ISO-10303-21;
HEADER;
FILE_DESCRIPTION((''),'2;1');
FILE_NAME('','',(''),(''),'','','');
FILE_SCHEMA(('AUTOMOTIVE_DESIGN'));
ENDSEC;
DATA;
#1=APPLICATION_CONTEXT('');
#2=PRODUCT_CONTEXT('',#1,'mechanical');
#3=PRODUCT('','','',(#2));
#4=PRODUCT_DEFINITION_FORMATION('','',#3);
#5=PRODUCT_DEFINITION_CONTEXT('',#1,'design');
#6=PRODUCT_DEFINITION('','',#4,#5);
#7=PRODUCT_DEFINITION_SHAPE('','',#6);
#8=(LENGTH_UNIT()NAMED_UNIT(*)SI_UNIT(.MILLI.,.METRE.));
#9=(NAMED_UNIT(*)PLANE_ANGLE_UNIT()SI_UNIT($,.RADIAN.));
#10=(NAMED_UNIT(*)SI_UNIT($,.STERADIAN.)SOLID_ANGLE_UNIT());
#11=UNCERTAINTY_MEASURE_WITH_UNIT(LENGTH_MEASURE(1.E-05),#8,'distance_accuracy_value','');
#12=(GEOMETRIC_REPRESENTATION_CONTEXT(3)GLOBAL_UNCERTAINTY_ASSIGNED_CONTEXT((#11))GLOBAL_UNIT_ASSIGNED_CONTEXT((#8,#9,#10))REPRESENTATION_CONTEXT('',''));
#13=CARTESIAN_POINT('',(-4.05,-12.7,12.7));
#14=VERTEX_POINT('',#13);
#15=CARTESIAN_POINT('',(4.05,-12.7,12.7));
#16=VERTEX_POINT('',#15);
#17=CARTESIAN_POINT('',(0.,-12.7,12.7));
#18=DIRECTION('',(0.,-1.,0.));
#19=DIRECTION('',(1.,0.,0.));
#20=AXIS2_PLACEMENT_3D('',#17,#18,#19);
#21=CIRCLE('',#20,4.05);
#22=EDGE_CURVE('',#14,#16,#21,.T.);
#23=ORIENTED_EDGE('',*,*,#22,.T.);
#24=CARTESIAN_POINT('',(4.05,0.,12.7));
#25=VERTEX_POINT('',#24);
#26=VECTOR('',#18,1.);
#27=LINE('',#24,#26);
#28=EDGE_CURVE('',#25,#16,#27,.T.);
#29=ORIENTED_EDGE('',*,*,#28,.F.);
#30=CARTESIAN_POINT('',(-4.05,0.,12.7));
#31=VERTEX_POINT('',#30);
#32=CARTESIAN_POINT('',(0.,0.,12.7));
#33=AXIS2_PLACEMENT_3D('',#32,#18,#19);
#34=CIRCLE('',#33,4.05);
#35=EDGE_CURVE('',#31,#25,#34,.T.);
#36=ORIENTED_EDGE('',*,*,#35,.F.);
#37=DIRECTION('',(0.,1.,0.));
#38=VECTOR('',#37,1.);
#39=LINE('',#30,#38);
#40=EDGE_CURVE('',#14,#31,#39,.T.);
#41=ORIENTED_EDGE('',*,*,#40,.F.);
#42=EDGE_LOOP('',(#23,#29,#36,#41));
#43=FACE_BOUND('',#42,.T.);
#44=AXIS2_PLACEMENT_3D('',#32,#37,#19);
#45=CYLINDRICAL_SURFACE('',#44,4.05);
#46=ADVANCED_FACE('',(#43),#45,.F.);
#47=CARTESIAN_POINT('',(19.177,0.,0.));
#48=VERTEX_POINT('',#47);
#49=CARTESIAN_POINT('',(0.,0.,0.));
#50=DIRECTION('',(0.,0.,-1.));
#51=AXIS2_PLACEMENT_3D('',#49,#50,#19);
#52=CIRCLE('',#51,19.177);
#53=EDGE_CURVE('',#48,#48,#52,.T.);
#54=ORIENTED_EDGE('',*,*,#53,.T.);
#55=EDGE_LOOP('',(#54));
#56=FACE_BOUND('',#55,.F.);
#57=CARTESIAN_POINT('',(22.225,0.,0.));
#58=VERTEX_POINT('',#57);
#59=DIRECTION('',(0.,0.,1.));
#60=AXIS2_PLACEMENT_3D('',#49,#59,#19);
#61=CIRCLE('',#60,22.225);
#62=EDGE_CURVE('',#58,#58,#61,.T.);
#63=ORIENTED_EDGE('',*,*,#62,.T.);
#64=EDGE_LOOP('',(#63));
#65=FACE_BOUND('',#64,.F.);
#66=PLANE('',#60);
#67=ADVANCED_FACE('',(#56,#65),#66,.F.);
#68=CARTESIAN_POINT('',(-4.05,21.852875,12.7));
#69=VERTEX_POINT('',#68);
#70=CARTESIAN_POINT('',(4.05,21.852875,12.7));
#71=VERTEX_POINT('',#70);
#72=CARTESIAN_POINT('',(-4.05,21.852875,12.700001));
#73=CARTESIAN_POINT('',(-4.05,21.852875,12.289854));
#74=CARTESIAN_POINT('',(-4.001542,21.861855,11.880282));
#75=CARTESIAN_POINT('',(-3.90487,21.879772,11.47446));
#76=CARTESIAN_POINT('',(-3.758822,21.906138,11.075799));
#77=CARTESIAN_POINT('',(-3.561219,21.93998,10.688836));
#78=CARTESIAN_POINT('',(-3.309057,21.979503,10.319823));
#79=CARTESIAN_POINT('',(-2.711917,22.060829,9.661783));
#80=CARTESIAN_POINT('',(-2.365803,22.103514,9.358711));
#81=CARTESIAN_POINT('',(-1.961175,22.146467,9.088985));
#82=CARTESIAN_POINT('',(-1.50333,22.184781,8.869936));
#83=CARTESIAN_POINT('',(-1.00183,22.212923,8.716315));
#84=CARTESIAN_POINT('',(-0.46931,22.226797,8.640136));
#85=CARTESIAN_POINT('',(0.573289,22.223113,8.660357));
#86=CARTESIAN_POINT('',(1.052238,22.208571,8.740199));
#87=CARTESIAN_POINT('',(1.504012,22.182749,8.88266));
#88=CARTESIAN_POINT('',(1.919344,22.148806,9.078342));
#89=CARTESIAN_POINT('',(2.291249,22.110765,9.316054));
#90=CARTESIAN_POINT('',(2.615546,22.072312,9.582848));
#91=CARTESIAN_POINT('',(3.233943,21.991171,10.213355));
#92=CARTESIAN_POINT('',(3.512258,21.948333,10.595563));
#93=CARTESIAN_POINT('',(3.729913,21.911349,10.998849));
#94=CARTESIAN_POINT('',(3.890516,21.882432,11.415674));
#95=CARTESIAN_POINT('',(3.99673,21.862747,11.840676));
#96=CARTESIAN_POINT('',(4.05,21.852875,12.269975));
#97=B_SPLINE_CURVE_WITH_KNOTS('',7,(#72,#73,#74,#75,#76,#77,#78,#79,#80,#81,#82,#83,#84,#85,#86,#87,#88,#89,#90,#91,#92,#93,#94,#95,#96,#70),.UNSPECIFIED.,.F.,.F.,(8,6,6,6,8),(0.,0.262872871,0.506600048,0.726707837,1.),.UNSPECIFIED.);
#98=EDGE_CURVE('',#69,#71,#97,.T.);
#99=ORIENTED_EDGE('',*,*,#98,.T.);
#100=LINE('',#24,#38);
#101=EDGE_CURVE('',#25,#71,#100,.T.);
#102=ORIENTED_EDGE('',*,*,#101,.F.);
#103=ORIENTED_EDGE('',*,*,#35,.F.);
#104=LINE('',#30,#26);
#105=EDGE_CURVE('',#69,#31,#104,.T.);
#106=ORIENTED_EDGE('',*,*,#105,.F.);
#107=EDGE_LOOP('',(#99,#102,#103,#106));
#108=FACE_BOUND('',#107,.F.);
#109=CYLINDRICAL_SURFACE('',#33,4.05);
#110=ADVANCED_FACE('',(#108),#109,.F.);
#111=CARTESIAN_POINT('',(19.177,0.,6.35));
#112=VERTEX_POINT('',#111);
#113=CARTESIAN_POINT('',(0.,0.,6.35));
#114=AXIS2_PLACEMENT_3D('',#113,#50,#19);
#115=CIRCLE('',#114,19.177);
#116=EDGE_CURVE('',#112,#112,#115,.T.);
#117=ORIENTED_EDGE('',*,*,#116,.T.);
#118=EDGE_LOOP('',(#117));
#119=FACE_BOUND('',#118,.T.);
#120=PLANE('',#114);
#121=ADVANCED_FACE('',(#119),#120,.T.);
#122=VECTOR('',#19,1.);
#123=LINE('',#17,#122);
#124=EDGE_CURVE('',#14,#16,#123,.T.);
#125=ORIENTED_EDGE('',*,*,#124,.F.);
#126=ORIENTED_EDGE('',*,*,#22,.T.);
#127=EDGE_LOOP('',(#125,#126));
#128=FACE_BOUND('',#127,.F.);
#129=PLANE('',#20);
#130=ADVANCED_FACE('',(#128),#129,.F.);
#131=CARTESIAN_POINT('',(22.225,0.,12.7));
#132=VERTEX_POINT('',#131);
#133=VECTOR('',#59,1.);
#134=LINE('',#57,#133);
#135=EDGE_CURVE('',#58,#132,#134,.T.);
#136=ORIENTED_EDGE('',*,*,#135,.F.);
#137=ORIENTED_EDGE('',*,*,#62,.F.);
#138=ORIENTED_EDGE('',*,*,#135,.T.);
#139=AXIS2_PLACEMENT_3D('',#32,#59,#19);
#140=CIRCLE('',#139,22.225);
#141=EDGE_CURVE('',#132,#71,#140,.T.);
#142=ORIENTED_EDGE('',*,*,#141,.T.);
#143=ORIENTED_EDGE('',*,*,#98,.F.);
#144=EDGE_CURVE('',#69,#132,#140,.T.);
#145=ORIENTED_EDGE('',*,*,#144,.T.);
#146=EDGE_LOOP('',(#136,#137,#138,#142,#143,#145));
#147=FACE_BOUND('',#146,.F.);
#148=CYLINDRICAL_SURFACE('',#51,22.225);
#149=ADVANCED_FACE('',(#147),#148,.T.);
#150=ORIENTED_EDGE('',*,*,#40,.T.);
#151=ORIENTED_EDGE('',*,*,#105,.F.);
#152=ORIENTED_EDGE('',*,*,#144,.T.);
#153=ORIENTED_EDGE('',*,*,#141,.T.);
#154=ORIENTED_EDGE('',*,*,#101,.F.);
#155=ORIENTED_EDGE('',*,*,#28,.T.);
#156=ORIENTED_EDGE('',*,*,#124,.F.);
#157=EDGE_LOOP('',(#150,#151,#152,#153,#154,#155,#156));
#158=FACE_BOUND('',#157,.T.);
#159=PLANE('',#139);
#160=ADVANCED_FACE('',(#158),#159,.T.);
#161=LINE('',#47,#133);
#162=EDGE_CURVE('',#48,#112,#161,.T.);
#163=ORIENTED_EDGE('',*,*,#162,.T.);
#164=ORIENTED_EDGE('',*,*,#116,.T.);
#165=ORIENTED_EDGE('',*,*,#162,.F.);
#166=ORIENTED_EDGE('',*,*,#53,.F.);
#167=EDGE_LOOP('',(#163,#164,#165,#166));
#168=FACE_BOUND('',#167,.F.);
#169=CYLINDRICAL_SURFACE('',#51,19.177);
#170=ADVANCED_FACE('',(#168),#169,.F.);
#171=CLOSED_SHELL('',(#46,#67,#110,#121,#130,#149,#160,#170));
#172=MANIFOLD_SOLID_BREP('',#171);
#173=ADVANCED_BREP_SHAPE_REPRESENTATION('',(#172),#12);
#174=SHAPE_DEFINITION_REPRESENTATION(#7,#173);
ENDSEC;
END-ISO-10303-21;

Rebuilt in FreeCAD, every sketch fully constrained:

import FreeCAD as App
import Part
import Sketcher

V = App.Vector
Q = App.Units.Quantity

doc = App.newDocument("Part")
body = doc.addObject("PartDesign::Body", "Body")

# Sketch on XY plane
sketch1 = body.newObject("Sketcher::SketchObject", "Sketch")
sketch1.AttachmentSupport = (doc.getObject("XY_Plane"), [""])
sketch1.MapMode = "FlatFace"
sketch1.addGeometry(Part.Circle(V(0, 0, 0), V(0, 0, 1), 22), False)
sketch1.addConstraint(Sketcher.Constraint("Coincident", 0, 3, -1, 1))
sketch1.addConstraint(Sketcher.Constraint("Diameter", 0, Q("1.75 in")))
pad1 = body.newObject("PartDesign::Pad", "Pad")
pad1.Profile = sketch1
pad1.Length = Q("0.5 in")

# Sketch on XY plane
sketch2 = body.newObject("Sketcher::SketchObject", "Sketch001")
sketch2.AttachmentSupport = (doc.getObject("XY_Plane"), [""])
sketch2.MapMode = "FlatFace"
sketch2.addGeometry(Part.Circle(V(0, 0, 0), V(0, 0, 1), 19), False)
sketch2.addConstraint(Sketcher.Constraint("Coincident", 0, 3, -1, 1))
sketch2.addConstraint(Sketcher.Constraint("Diameter", 0, Q("1.51 in")))
pocket1 = body.newObject("PartDesign::Pocket", "Pocket")
pocket1.Profile = sketch2
pocket1.Length = Q("0.25 in")
pocket1.Reversed = True

# Sketch on XZ plane
sketch3 = body.newObject("Sketcher::SketchObject", "Sketch002")
sketch3.AttachmentSupport = (doc.getObject("XZ_Plane"), [""])
sketch3.MapMode = "FlatFace"
sketch3.addGeometry(Part.Circle(V(0, 12.7, 0), V(0, 0, 1), 4), False)
sketch3.addConstraint(Sketcher.Constraint("PointOnObject", 0, 3, -2))
sketch3.addConstraint(Sketcher.Constraint("DistanceY", -1, 1, 0, 3, Q("0.5 in")))
sketch3.addConstraint(Sketcher.Constraint("Diameter", 0, Q("8.1 mm")))
pocket2 = body.newObject("PartDesign::Pocket", "Pocket001")
pocket2.Profile = sketch3
pocket2.Type = "ThroughAll"

# Sketch on XZ plane
sketch4 = body.newObject("Sketcher::SketchObject", "Sketch003")
sketch4.AttachmentSupport = (doc.getObject("XZ_Plane"), [""])
sketch4.MapMode = "FlatFace"
sketch4.addGeometry(Part.Circle(V(0, 12.7, 0), V(0, 0, 1), 4), False)
sketch4.addConstraint(Sketcher.Constraint("PointOnObject", 0, 3, -2))
sketch4.addConstraint(Sketcher.Constraint("DistanceY", -1, 1, 0, 3, Q("0.5 in")))
sketch4.addConstraint(Sketcher.Constraint("Diameter", 0, Q("8.1 mm")))
pocket3 = body.newObject("PartDesign::Pocket", "Pocket002")
pocket3.Profile = sketch4
pocket3.Length = Q("0.5 in")
pocket3.Reversed = True

doc.recompute()
